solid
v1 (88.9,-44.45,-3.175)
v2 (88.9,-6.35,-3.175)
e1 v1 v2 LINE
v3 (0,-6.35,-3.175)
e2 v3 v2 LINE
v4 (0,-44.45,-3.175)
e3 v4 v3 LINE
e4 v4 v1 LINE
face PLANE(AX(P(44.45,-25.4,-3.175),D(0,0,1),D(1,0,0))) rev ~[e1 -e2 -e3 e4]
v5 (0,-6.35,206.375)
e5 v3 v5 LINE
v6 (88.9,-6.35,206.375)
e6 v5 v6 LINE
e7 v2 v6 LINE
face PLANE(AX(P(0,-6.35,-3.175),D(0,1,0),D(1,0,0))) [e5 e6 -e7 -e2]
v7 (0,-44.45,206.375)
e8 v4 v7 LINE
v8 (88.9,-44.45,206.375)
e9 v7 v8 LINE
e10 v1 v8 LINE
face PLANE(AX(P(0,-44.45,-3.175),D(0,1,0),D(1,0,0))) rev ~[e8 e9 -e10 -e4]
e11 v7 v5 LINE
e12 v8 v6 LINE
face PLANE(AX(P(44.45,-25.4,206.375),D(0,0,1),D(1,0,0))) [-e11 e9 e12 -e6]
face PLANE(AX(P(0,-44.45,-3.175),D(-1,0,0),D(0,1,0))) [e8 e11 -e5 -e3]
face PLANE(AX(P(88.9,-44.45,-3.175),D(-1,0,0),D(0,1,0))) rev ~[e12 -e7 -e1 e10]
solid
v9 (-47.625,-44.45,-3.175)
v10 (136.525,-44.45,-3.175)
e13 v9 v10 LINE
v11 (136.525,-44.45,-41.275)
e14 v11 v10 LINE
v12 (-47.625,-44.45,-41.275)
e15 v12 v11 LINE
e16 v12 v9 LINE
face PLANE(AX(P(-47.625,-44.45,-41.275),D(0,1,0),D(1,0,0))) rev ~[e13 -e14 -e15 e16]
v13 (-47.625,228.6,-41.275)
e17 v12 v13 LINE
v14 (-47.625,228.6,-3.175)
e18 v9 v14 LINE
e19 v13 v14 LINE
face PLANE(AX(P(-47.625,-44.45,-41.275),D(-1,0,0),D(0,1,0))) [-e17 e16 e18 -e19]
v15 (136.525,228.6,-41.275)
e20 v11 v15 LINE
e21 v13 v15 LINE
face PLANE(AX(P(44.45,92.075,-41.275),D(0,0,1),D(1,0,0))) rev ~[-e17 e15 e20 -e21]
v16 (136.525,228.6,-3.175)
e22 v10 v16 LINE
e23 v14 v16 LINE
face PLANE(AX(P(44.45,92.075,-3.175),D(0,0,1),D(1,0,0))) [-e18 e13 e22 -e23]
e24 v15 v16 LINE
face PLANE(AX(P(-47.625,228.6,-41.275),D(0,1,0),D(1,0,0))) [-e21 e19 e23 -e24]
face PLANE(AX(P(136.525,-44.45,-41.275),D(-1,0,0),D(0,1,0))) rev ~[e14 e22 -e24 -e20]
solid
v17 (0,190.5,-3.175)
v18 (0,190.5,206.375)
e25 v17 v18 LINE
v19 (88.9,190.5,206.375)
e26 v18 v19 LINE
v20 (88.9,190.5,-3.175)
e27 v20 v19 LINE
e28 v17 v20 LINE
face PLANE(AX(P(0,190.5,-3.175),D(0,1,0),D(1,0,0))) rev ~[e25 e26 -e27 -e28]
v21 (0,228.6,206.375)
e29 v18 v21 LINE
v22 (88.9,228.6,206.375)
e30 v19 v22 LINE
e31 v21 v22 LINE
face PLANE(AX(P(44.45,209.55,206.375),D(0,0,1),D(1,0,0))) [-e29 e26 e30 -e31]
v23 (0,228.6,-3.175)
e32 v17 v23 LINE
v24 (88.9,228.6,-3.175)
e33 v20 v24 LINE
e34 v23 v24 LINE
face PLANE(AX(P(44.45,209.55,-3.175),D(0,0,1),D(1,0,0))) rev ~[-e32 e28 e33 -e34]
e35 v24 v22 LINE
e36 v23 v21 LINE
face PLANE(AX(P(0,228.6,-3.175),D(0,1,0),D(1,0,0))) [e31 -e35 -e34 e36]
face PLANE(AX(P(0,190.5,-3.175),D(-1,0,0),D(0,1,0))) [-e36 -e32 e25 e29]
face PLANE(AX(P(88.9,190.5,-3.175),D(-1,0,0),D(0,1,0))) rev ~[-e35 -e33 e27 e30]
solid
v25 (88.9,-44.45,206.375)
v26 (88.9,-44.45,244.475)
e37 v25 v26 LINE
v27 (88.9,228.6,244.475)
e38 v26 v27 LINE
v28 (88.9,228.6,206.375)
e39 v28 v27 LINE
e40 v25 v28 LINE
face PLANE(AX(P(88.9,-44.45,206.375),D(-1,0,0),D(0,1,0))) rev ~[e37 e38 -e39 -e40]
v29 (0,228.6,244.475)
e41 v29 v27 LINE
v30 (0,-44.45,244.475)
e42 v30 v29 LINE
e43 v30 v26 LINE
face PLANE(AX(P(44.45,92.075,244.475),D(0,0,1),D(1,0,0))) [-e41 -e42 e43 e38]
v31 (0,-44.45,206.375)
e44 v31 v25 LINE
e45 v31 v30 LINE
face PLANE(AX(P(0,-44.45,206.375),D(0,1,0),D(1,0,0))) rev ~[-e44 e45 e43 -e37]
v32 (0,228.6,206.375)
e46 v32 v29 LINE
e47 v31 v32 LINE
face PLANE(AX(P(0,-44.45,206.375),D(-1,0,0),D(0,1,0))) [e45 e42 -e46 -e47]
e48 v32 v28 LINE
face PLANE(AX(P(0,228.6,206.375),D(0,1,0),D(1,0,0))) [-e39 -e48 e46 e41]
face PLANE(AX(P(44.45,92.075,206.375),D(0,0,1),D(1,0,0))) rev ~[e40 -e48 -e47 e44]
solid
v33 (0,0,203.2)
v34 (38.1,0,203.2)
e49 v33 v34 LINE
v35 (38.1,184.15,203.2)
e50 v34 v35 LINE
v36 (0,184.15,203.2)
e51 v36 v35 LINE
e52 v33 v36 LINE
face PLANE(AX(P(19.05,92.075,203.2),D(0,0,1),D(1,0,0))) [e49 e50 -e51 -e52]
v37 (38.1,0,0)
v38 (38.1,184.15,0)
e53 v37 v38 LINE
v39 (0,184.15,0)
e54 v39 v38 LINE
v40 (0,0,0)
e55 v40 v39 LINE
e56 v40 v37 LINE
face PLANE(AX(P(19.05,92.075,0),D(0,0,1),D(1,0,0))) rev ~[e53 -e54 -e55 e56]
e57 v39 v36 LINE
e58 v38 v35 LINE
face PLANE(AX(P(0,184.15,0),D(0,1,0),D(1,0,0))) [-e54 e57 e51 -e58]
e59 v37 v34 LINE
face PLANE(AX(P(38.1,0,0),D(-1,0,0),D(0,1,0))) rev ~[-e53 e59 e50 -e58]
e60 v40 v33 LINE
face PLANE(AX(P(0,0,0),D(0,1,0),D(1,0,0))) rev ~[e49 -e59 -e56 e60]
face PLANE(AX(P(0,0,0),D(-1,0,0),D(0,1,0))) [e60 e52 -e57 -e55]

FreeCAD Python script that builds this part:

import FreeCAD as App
import Part
import Sketcher

V = App.Vector
Q = App.Units.Quantity


def add_polygon(sketch, points):
    """Adds a closed chain of lines whose ends are joined by coincident constraints."""
    first, n = sketch.GeometryCount, len(points)
    for a, b in zip(points, points[1:] + points[:1]):
        sketch.addGeometry(Part.LineSegment(App.Vector(*a, 0), App.Vector(*b, 0)), False)
    for i in range(n):
        sketch.addConstraint(Sketcher.Constraint("Coincident", first + i, 2, first + (i + 1) % n, 1))

doc = App.newDocument("Part")
body = doc.addObject("PartDesign::Body", "Body")

sketch1 = body.newObject("Sketcher::SketchObject", "Sketch")
sketch1.AttachmentSupport = (doc.getObject("XY_Plane"), [""])
sketch1.MapMode = "FlatFace"
add_polygon(sketch1, [(0, 184), (0, 0), (38, 0), (38, 184)])
sketch1.addConstraint(Sketcher.Constraint("Vertical", 0))
sketch1.addConstraint(Sketcher.Constraint("Horizontal", 1))
sketch1.addConstraint(Sketcher.Constraint("Vertical", 2))
sketch1.addConstraint(Sketcher.Constraint("Horizontal", 3))
sketch1.addConstraint(Sketcher.Constraint("Coincident", 0, 2, -1, 1))
sketch1.addConstraint(Sketcher.Constraint("DistanceX", 1, 1, 1, 2, Q("1.5 in")))
sketch1.addConstraint(Sketcher.Constraint("DistanceY", 0, 2, 0, 1, Q("7.25 in")))
pad1 = body.newObject("PartDesign::Pad", "Pad")
pad1.Profile = sketch1
pad1.Length = Q("8 in")
body2 = doc.addObject("PartDesign::Body", "Body001")

sketch2 = body2.newObject("Sketcher::SketchObject", "Sketch001")
sketch2.AttachmentSupport = (doc.getObject("XY_Plane001"), [""])
sketch2.MapMode = "FlatFace"
sketch2.AttachmentOffset = App.Placement(V(0, 0, -1.625 * 25.4), App.Rotation())
add_polygon(sketch2, [(-48, 229), (-48, -44), (137, -44), (137, 229)])
sketch2.addConstraint(Sketcher.Constraint("Vertical", 0))
sketch2.addConstraint(Sketcher.Constraint("Horizontal", 1))
sketch2.addConstraint(Sketcher.Constraint("Vertical", 2))
sketch2.addConstraint(Sketcher.Constraint("Horizontal", 3))
sketch2.addConstraint(Sketcher.Constraint("DistanceY", -1, 1, 2, 2, Q("9 in")))
sketch2.addConstraint(Sketcher.Constraint("DistanceX", 1, 1, 1, 2, Q("7.25 in")))
sketch2.addConstraint(Sketcher.Constraint("DistanceY", 0, 2, 0, 1, Q("10.75 in")))
sketch2.addConstraint(Sketcher.Constraint("DistanceX", 0, 2, -1, 1, Q("1.875 in")))
pad2 = body2.newObject("PartDesign::Pad", "Pad001")
pad2.Profile = sketch2
pad2.Length = Q("1.5 in")
body3 = doc.addObject("PartDesign::Body", "Body002")

sketch3 = body3.newObject("Sketcher::SketchObject", "Sketch002")
sketch3.AttachmentSupport = (doc.getObject("XY_Plane002"), [""])
sketch3.MapMode = "FlatFace"
sketch3.AttachmentOffset = App.Placement(V(0, 0, -0.125 * 25.4), App.Rotation())
add_polygon(sketch3, [(0, -6), (0, -44), (89, -44), (89, -6)])
sketch3.addConstraint(Sketcher.Constraint("Vertical", 0))
sketch3.addConstraint(Sketcher.Constraint("Horizontal", 1))
sketch3.addConstraint(Sketcher.Constraint("Vertical", 2))
sketch3.addConstraint(Sketcher.Constraint("Horizontal", 3))
sketch3.addConstraint(Sketcher.Constraint("PointOnObject", 0, 2, -2))
sketch3.addConstraint(Sketcher.Constraint("DistanceX", 1, 1, 1, 2, Q("3.5 in")))
sketch3.addConstraint(Sketcher.Constraint("DistanceY", 0, 2, 0, 1, Q("1.5 in")))
sketch3.addConstraint(Sketcher.Constraint("DistanceY", 0, 2, -1, 1, Q("1.75 in")))
pad3 = body3.newObject("PartDesign::Pad", "Pad002")
pad3.Profile = sketch3
pad3.Length = Q("8.25 in")
body4 = doc.addObject("PartDesign::Body", "Body003")

sketch4 = body4.newObject("Sketcher::SketchObject", "Sketch003")
sketch4.AttachmentSupport = (doc.getObject("XY_Plane003"), [""])
sketch4.MapMode = "FlatFace"
sketch4.AttachmentOffset = App.Placement(V(0, 0, -0.125 * 25.4), App.Rotation())
add_polygon(sketch4, [(0, 229), (0, 190), (89, 190), (89, 229)])
sketch4.addConstraint(Sketcher.Constraint("Vertical", 0))
sketch4.addConstraint(Sketcher.Constraint("Horizontal", 1))
sketch4.addConstraint(Sketcher.Constraint("Vertical", 2))
sketch4.addConstraint(Sketcher.Constraint("Horizontal", 3))
sketch4.addConstraint(Sketcher.Constraint("PointOnObject", 0, 2, -2))
sketch4.addConstraint(Sketcher.Constraint("DistanceX", 1, 1, 1, 2, Q("3.5 in")))
sketch4.addConstraint(Sketcher.Constraint("DistanceY", 0, 2, 0, 1, Q("1.5 in")))
sketch4.addConstraint(Sketcher.Constraint("DistanceY", -1, 1, 2, 2, Q("9 in")))
pad4 = body4.newObject("PartDesign::Pad", "Pad003")
pad4.Profile = sketch4
pad4.Length = Q("8.25 in")
body5 = doc.addObject("PartDesign::Body", "Body004")

sketch5 = body5.newObject("Sketcher::SketchObject", "Sketch004")
sketch5.AttachmentSupport = (doc.getObject("XY_Plane004"), [""])
sketch5.MapMode = "FlatFace"
sketch5.AttachmentOffset = App.Placement(V(0, 0, 8.125 * 25.4), App.Rotation())
add_polygon(sketch5, [(0, 229), (0, -44), (89, -44), (89, 229)])
sketch5.addConstraint(Sketcher.Constraint("Vertical", 0))
sketch5.addConstraint(Sketcher.Constraint("Horizontal", 1))
sketch5.addConstraint(Sketcher.Constraint("Vertical", 2))
sketch5.addConstraint(Sketcher.Constraint("Horizontal", 3))
sketch5.addConstraint(Sketcher.Constraint("PointOnObject", 0, 2, -2))
sketch5.addConstraint(Sketcher.Constraint("DistanceX", 1, 1, 1, 2, Q("3.5 in")))
sketch5.addConstraint(Sketcher.Constraint("DistanceY", -1, 1, 2, 2, Q("9 in")))
sketch5.addConstraint(Sketcher.Constraint("DistanceY", 0, 2, 0, 1, Q("10.75 in")))
pad5 = body5.newObject("PartDesign::Pad", "Pad004")
pad5.Profile = sketch5
pad5.Length = Q("1.5 in")

doc.recompute()
